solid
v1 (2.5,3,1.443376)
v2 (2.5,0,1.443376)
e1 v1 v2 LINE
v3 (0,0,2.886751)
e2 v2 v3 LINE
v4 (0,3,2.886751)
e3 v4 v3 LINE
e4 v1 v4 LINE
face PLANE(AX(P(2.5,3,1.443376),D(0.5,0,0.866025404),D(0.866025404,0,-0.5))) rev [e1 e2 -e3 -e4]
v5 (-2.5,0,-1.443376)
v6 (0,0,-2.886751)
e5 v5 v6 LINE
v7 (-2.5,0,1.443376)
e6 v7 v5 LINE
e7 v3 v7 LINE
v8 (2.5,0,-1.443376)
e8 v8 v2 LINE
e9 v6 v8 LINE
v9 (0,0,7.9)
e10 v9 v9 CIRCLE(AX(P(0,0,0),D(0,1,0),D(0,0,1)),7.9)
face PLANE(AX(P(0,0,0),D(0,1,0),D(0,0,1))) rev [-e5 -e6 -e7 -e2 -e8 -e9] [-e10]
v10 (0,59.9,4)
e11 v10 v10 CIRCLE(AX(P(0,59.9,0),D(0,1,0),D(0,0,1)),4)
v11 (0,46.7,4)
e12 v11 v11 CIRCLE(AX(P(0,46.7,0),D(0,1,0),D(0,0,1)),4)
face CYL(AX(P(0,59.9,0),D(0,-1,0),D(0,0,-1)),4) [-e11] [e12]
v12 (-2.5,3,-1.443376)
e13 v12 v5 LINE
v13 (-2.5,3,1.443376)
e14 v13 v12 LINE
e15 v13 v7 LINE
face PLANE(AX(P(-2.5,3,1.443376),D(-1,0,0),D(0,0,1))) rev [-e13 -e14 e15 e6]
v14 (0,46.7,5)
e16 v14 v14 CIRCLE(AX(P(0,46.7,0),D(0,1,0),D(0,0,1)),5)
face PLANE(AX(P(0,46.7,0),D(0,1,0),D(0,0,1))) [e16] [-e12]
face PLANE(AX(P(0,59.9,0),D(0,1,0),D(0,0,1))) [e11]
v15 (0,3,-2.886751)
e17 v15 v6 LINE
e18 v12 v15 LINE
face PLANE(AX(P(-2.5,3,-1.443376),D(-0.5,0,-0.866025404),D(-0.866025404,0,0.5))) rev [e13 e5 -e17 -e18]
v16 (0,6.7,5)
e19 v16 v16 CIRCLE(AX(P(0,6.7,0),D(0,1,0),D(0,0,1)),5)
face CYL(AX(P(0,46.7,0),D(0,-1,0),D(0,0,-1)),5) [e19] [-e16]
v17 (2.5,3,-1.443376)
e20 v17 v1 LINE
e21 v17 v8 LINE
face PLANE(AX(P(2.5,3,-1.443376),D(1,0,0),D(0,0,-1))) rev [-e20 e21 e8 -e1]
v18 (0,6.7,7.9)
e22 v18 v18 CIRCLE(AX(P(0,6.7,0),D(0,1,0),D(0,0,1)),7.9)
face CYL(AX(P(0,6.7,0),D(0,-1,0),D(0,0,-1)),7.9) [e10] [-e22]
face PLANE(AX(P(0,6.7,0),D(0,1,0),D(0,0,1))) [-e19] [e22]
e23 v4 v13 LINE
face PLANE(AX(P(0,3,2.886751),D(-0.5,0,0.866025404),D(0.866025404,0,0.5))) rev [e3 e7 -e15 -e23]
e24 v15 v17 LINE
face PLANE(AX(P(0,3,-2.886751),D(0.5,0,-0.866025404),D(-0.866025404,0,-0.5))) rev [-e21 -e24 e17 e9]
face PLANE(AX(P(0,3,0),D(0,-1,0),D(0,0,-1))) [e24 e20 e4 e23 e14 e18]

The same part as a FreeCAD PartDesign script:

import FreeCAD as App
import Part
import Sketcher
from FreeCAD import Vector
Q = App.Units.Quantity

doc = App.newDocument("Part")
params = doc.addObject("Spreadsheet::Sheet", "Params")
for row, (alias, value) in enumerate([
    ("sketch1_diameter", "8 mm"),
    ("pad1_length", "59.9 mm"),
    ("sketch2_diameter", "10 mm"),
    ("sketch2_diameter2", "8 mm"),
    ("pad2_length", "46.7 mm"),
    ("sketch3_diameter", "10 mm"),
    ("sketch3_diameter2", "15.8 mm"),
    ("pad3_length", "6.7 mm"),
    ("pocket1_length", "3 mm"),
], start=1):
    params.set(f"A{row}", alias)
    params.set(f"B{row}", "=" + value)
    params.setAlias(f"B{row}", alias)

body = doc.addObject("PartDesign::Body", "Body")

sketch1 = body.newObject("Sketcher::SketchObject", "Sketch")
sketch1.AttachmentSupport = (doc.getObject("XZ_Plane"), [""])
sketch1.MapMode = "FlatFace"
sketch1.addGeometry(Part.Circle(Vector(0, 0, 0), Vector(0, 0, 1), 4), False)
sketch1.addConstraint([
    Sketcher.Constraint("Coincident", 0, 3, -1, 1),
    Sketcher.Constraint("Diameter", 0, Q("8 mm")),
])
sketch1.setExpression("Constraints[1]", "Params.sketch1_diameter")
pad1 = body.newObject("PartDesign::Pad", "Pad")
pad1.Profile = sketch1
pad1.setExpression("Length", "Params.pad1_length")
pad1.Reversed = True

sketch2 = body.newObject("Sketcher::SketchObject", "Sketch001")
sketch2.AttachmentSupport = (doc.getObject("XZ_Plane"), [""])
sketch2.MapMode = "FlatFace"
sketch2.addGeometry([
    Part.Circle(Vector(0, 0, 0), Vector(0, 0, 1), 5),
    Part.Circle(Vector(0, 0, 0), Vector(0, 0, 1), 4),
], False)
sketch2.addConstraint([
    Sketcher.Constraint("Coincident", 0, 3, -1, 1),
    Sketcher.Constraint("Coincident", 1, 3, -1, 1),
    Sketcher.Constraint("Diameter", 0, Q("10 mm")),
    Sketcher.Constraint("Diameter", 1, Q("8 mm")),
])
sketch2.setExpression("Constraints[2]", "Params.sketch2_diameter")
sketch2.setExpression("Constraints[3]", "Params.sketch2_diameter2")
pad2 = body.newObject("PartDesign::Pad", "Pad001")
pad2.Profile = sketch2
pad2.setExpression("Length", "Params.pad2_length")
pad2.Reversed = True

sketch3 = body.newObject("Sketcher::SketchObject", "Sketch002")
sketch3.AttachmentSupport = (doc.getObject("XZ_Plane"), [""])
sketch3.MapMode = "FlatFace"
sketch3.addGeometry([
    Part.Circle(Vector(0, 0, 0), Vector(0, 0, 1), 7.9),
    Part.Circle(Vector(0, 0, 0), Vector(0, 0, 1), 5),
], False)
sketch3.addConstraint([
    Sketcher.Constraint("Coincident", 0, 3, -1, 1),
    Sketcher.Constraint("Coincident", 1, 3, -1, 1),
    Sketcher.Constraint("Diameter", 1, Q("10 mm")),
    Sketcher.Constraint("Diameter", 0, Q("15.8 mm")),
])
sketch3.setExpression("Constraints[2]", "Params.sketch3_diameter")
sketch3.setExpression("Constraints[3]", "Params.sketch3_diameter2")
pad3 = body.newObject("PartDesign::Pad", "Pad002")
pad3.Profile = sketch3
pad3.setExpression("Length", "Params.pad3_length")
pad3.Reversed = True

sketch4 = body.newObject("Sketcher::SketchObject", "Sketch003")
sketch4.AttachmentSupport = (doc.getObject("XZ_Plane"), [""])
sketch4.MapMode = "FlatFace"
sketch4.addGeometry([
    Part.LineSegment(Vector(2.5, 1.443376, 0), Vector(0, 2.886751, 0)),
    Part.LineSegment(Vector(0, 2.886751, 0), Vector(-2.5, 1.443376, 0)),
    Part.LineSegment(Vector(-2.5, 1.443376, 0), Vector(-2.5, -1.443376, 0)),
    Part.LineSegment(Vector(-2.5, -1.443376, 0), Vector(0, -2.886751, 0)),
    Part.LineSegment(Vector(0, -2.886751, 0), Vector(2.5, -1.443376, 0)),
    Part.LineSegment(Vector(2.5, -1.443376, 0), Vector(2.5, 1.443376, 0)),
], False)
sketch4.addConstraint([
    Sketcher.Constraint("Coincident", 0, 2, 1, 1),
    Sketcher.Constraint("Coincident", 1, 2, 2, 1),
    Sketcher.Constraint("Coincident", 2, 2, 3, 1),
    Sketcher.Constraint("Coincident", 3, 2, 4, 1),
    Sketcher.Constraint("Coincident", 4, 2, 5, 1),
    Sketcher.Constraint("Coincident", 5, 2, 0, 1),
    Sketcher.Constraint("Vertical", 2),
    Sketcher.Constraint("Vertical", 5),
    Sketcher.Constraint("Symmetric", 0, 2, 3, 2, -1, 1),
    Sketcher.Constraint("Symmetric", 1, 2, 4, 2, -1, 1),
    Sketcher.Constraint("PointOnObject", 0, 2, -2),
    Sketcher.Constraint("Parallel", 0, 3),
    Sketcher.Constraint("Horizontal", 2, 2, 4, 2),
    Sketcher.Constraint("Angle", 0, Q("150 deg")),
    Sketcher.Constraint("DistanceX", 2, 2, 4, 2, Q("5 mm")),
    Sketcher.Constraint("DistanceY", 2, 2, 2, 1, Q("2.886751 mm")),
])
pocket1 = body.newObject("PartDesign::Pocket", "Pocket")
pocket1.Profile = sketch4
pocket1.setExpression("Length", "Params.pocket1_length")

doc.recompute()
